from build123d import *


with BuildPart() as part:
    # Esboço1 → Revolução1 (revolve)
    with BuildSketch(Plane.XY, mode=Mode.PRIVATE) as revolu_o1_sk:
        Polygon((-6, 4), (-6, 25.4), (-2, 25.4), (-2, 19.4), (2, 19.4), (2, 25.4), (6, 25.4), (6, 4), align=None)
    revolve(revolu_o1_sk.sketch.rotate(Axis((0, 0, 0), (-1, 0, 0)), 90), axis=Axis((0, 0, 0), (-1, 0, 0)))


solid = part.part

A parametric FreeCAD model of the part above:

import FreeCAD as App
import Part
import Sketcher

doc = App.newDocument("Part")
params = doc.addObject("Spreadsheet::Sheet", "Params")
for row, (alias, value) in enumerate([
    ("sketch1_width", "12 mm"),
    ("sketch1_height", "6 mm"),
    ("sketch1_height2", "21.4 mm"),
    ("revolution_angle", "360 deg"),
], start=1):
    params.set(f"A{row}", alias)
    params.set(f"B{row}", "=" + value)
    params.setAlias(f"B{row}", alias)

body = doc.addObject("PartDesign::Body", "Body")

sketch1 = doc.addObject("Sketcher::SketchObject", "Sketch")
body.addObject(sketch1)
sketch1.AttachmentSupport = (doc.XY_Plane, [""])
sketch1.MapMode = "FlatFace"
sketch1.addGeometry([
    Part.LineSegment(App.Vector(-6, 25.4, 0), App.Vector(-6, 4, 0)),
    Part.LineSegment(App.Vector(-6, 4, 0), App.Vector(6, 4, 0)),
    Part.LineSegment(App.Vector(6, 4, 0), App.Vector(6, 25.4, 0)),
    Part.LineSegment(App.Vector(6, 25.4, 0), App.Vector(2, 25.4, 0)),
    Part.LineSegment(App.Vector(2, 25.4, 0), App.Vector(2, 19.4, 0)),
    Part.LineSegment(App.Vector(2, 19.4, 0), App.Vector(-2, 19.4, 0)),
    Part.LineSegment(App.Vector(-2, 19.4, 0), App.Vector(-2, 25.4, 0)),
    Part.LineSegment(App.Vector(-2, 25.4, 0), App.Vector(-6, 25.4, 0)),
], False)
sketch1.addConstraint([
    Sketcher.Constraint("Coincident", 0, 2, 1, 1),
    Sketcher.Constraint("Coincident", 1, 2, 2, 1),
    Sketcher.Constraint("Coincident", 2, 2, 3, 1),
    Sketcher.Constraint("Coincident", 3, 2, 4, 1),
    Sketcher.Constraint("Coincident", 4, 2, 5, 1),
    Sketcher.Constraint("Coincident", 5, 2, 6, 1),
    Sketcher.Constraint("Coincident", 6, 2, 7, 1),
    Sketcher.Constraint("Coincident", 7, 2, 0, 1),
    Sketcher.Constraint("Vertical", 0),
    Sketcher.Constraint("Horizontal", 1),
    Sketcher.Constraint("Vertical", 2),
    Sketcher.Constraint("Horizontal", 3),
    Sketcher.Constraint("Vertical", 4),
    Sketcher.Constraint("Horizontal", 5),
    Sketcher.Constraint("Vertical", 6),
    Sketcher.Constraint("Horizontal", 7),
    Sketcher.Constraint("Symmetric", 3, 2, 6, 2, -2),
    Sketcher.Constraint("Equal", 3, 5),
    Sketcher.Constraint("Equal", 5, 7),
    Sketcher.Constraint("DistanceX", 1, 1, 1, 2, 12.0),
    Sketcher.Constraint("DistanceY", 4, 2, 4, 1, 6.0),
    Sketcher.Constraint("DistanceY", 0, 2, 0, 1, 21.4),
    Sketcher.Constraint("DistanceY", -1, 1, 0, 2, 4.0),
])
sketch1.setExpression("Constraints[19]", "Params.sketch1_width")
sketch1.setExpression("Constraints[20]", "Params.sketch1_height")
sketch1.setExpression("Constraints[21]", "Params.sketch1_height2")
revolution = doc.addObject("PartDesign::Revolution", "Revolution")
body.addObject(revolution)
revolution.Profile = sketch1
revolution.ReferenceAxis = (sketch1, ["H_Axis"])
revolution.setExpression("Angle", "Params.revolution_angle")

doc.recompute()
